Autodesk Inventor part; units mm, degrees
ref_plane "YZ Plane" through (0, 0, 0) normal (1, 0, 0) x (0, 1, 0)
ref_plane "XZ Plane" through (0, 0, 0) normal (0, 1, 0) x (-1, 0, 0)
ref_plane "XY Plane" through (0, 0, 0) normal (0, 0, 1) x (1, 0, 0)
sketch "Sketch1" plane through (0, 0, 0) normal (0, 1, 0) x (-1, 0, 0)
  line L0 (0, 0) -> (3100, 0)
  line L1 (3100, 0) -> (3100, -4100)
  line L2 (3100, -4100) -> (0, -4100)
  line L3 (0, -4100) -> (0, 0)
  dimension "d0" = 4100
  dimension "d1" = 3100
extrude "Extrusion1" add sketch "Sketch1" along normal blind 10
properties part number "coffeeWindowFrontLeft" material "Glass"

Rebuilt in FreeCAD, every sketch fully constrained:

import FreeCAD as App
import Part
import Sketcher

doc = App.newDocument("Part")
params = doc.addObject("Spreadsheet::Sheet", "Params")
for row, (alias, value) in enumerate([
    ("sketch1_width", "3100 mm"),
    ("sketch1_height", "4100 mm"),
    ("pad1_length", "10 mm"),
], start=1):
    params.set(f"A{row}", alias)
    params.set(f"B{row}", "=" + value)
    params.setAlias(f"B{row}", alias)

body = doc.addObject("PartDesign::Body", "Body")

# Sketch on XZ plane
sketch1 = body.newObject("Sketcher::SketchObject", "Sketch")
sketch1.AttachmentSupport = (doc.getObject("XZ_Plane"), [""])
sketch1.MapMode = "FlatFace"
sketch1.addGeometry(Part.LineSegment(App.Vector(-3100, 0, 0), App.Vector(0, 0, 0)), False)
sketch1.addGeometry(Part.LineSegment(App.Vector(0, 0, 0), App.Vector(0, -4100, 0)), False)
sketch1.addGeometry(Part.LineSegment(App.Vector(0, -4100, 0), App.Vector(-3100, -4100, 0)), False)
sketch1.addGeometry(Part.LineSegment(App.Vector(-3100, -4100, 0), App.Vector(-3100, 0, 0)), False)
sketch1.addConstraint(Sketcher.Constraint("Coincident", 0, 2, 1, 1))
sketch1.addConstraint(Sketcher.Constraint("Coincident", 1, 2, 2, 1))
sketch1.addConstraint(Sketcher.Constraint("Coincident", 2, 2, 3, 1))
sketch1.addConstraint(Sketcher.Constraint("Coincident", 3, 2, 0, 1))
sketch1.addConstraint(Sketcher.Constraint("Horizontal", 0))
sketch1.addConstraint(Sketcher.Constraint("Vertical", 1))
sketch1.addConstraint(Sketcher.Constraint("Horizontal", 2))
sketch1.addConstraint(Sketcher.Constraint("Vertical", 3))
sketch1.addConstraint(Sketcher.Constraint("Coincident", 0, 2, -1, 1))
sketch1.addConstraint(Sketcher.Constraint("DistanceX", 0, 1, 0, 2, 3100.0))
sketch1.addConstraint(Sketcher.Constraint("DistanceY", 1, 2, 1, 1, 4100.0))
sketch1.setExpression("Constraints[9]", "Params.sketch1_width")
sketch1.setExpression("Constraints[10]", "Params.sketch1_height")
pad1 = body.newObject("PartDesign::Pad", "Pad")
pad1.Profile = sketch1
pad1.setExpression("Length", "Params.pad1_length")
pad1.Reversed = True

doc.recompute()
